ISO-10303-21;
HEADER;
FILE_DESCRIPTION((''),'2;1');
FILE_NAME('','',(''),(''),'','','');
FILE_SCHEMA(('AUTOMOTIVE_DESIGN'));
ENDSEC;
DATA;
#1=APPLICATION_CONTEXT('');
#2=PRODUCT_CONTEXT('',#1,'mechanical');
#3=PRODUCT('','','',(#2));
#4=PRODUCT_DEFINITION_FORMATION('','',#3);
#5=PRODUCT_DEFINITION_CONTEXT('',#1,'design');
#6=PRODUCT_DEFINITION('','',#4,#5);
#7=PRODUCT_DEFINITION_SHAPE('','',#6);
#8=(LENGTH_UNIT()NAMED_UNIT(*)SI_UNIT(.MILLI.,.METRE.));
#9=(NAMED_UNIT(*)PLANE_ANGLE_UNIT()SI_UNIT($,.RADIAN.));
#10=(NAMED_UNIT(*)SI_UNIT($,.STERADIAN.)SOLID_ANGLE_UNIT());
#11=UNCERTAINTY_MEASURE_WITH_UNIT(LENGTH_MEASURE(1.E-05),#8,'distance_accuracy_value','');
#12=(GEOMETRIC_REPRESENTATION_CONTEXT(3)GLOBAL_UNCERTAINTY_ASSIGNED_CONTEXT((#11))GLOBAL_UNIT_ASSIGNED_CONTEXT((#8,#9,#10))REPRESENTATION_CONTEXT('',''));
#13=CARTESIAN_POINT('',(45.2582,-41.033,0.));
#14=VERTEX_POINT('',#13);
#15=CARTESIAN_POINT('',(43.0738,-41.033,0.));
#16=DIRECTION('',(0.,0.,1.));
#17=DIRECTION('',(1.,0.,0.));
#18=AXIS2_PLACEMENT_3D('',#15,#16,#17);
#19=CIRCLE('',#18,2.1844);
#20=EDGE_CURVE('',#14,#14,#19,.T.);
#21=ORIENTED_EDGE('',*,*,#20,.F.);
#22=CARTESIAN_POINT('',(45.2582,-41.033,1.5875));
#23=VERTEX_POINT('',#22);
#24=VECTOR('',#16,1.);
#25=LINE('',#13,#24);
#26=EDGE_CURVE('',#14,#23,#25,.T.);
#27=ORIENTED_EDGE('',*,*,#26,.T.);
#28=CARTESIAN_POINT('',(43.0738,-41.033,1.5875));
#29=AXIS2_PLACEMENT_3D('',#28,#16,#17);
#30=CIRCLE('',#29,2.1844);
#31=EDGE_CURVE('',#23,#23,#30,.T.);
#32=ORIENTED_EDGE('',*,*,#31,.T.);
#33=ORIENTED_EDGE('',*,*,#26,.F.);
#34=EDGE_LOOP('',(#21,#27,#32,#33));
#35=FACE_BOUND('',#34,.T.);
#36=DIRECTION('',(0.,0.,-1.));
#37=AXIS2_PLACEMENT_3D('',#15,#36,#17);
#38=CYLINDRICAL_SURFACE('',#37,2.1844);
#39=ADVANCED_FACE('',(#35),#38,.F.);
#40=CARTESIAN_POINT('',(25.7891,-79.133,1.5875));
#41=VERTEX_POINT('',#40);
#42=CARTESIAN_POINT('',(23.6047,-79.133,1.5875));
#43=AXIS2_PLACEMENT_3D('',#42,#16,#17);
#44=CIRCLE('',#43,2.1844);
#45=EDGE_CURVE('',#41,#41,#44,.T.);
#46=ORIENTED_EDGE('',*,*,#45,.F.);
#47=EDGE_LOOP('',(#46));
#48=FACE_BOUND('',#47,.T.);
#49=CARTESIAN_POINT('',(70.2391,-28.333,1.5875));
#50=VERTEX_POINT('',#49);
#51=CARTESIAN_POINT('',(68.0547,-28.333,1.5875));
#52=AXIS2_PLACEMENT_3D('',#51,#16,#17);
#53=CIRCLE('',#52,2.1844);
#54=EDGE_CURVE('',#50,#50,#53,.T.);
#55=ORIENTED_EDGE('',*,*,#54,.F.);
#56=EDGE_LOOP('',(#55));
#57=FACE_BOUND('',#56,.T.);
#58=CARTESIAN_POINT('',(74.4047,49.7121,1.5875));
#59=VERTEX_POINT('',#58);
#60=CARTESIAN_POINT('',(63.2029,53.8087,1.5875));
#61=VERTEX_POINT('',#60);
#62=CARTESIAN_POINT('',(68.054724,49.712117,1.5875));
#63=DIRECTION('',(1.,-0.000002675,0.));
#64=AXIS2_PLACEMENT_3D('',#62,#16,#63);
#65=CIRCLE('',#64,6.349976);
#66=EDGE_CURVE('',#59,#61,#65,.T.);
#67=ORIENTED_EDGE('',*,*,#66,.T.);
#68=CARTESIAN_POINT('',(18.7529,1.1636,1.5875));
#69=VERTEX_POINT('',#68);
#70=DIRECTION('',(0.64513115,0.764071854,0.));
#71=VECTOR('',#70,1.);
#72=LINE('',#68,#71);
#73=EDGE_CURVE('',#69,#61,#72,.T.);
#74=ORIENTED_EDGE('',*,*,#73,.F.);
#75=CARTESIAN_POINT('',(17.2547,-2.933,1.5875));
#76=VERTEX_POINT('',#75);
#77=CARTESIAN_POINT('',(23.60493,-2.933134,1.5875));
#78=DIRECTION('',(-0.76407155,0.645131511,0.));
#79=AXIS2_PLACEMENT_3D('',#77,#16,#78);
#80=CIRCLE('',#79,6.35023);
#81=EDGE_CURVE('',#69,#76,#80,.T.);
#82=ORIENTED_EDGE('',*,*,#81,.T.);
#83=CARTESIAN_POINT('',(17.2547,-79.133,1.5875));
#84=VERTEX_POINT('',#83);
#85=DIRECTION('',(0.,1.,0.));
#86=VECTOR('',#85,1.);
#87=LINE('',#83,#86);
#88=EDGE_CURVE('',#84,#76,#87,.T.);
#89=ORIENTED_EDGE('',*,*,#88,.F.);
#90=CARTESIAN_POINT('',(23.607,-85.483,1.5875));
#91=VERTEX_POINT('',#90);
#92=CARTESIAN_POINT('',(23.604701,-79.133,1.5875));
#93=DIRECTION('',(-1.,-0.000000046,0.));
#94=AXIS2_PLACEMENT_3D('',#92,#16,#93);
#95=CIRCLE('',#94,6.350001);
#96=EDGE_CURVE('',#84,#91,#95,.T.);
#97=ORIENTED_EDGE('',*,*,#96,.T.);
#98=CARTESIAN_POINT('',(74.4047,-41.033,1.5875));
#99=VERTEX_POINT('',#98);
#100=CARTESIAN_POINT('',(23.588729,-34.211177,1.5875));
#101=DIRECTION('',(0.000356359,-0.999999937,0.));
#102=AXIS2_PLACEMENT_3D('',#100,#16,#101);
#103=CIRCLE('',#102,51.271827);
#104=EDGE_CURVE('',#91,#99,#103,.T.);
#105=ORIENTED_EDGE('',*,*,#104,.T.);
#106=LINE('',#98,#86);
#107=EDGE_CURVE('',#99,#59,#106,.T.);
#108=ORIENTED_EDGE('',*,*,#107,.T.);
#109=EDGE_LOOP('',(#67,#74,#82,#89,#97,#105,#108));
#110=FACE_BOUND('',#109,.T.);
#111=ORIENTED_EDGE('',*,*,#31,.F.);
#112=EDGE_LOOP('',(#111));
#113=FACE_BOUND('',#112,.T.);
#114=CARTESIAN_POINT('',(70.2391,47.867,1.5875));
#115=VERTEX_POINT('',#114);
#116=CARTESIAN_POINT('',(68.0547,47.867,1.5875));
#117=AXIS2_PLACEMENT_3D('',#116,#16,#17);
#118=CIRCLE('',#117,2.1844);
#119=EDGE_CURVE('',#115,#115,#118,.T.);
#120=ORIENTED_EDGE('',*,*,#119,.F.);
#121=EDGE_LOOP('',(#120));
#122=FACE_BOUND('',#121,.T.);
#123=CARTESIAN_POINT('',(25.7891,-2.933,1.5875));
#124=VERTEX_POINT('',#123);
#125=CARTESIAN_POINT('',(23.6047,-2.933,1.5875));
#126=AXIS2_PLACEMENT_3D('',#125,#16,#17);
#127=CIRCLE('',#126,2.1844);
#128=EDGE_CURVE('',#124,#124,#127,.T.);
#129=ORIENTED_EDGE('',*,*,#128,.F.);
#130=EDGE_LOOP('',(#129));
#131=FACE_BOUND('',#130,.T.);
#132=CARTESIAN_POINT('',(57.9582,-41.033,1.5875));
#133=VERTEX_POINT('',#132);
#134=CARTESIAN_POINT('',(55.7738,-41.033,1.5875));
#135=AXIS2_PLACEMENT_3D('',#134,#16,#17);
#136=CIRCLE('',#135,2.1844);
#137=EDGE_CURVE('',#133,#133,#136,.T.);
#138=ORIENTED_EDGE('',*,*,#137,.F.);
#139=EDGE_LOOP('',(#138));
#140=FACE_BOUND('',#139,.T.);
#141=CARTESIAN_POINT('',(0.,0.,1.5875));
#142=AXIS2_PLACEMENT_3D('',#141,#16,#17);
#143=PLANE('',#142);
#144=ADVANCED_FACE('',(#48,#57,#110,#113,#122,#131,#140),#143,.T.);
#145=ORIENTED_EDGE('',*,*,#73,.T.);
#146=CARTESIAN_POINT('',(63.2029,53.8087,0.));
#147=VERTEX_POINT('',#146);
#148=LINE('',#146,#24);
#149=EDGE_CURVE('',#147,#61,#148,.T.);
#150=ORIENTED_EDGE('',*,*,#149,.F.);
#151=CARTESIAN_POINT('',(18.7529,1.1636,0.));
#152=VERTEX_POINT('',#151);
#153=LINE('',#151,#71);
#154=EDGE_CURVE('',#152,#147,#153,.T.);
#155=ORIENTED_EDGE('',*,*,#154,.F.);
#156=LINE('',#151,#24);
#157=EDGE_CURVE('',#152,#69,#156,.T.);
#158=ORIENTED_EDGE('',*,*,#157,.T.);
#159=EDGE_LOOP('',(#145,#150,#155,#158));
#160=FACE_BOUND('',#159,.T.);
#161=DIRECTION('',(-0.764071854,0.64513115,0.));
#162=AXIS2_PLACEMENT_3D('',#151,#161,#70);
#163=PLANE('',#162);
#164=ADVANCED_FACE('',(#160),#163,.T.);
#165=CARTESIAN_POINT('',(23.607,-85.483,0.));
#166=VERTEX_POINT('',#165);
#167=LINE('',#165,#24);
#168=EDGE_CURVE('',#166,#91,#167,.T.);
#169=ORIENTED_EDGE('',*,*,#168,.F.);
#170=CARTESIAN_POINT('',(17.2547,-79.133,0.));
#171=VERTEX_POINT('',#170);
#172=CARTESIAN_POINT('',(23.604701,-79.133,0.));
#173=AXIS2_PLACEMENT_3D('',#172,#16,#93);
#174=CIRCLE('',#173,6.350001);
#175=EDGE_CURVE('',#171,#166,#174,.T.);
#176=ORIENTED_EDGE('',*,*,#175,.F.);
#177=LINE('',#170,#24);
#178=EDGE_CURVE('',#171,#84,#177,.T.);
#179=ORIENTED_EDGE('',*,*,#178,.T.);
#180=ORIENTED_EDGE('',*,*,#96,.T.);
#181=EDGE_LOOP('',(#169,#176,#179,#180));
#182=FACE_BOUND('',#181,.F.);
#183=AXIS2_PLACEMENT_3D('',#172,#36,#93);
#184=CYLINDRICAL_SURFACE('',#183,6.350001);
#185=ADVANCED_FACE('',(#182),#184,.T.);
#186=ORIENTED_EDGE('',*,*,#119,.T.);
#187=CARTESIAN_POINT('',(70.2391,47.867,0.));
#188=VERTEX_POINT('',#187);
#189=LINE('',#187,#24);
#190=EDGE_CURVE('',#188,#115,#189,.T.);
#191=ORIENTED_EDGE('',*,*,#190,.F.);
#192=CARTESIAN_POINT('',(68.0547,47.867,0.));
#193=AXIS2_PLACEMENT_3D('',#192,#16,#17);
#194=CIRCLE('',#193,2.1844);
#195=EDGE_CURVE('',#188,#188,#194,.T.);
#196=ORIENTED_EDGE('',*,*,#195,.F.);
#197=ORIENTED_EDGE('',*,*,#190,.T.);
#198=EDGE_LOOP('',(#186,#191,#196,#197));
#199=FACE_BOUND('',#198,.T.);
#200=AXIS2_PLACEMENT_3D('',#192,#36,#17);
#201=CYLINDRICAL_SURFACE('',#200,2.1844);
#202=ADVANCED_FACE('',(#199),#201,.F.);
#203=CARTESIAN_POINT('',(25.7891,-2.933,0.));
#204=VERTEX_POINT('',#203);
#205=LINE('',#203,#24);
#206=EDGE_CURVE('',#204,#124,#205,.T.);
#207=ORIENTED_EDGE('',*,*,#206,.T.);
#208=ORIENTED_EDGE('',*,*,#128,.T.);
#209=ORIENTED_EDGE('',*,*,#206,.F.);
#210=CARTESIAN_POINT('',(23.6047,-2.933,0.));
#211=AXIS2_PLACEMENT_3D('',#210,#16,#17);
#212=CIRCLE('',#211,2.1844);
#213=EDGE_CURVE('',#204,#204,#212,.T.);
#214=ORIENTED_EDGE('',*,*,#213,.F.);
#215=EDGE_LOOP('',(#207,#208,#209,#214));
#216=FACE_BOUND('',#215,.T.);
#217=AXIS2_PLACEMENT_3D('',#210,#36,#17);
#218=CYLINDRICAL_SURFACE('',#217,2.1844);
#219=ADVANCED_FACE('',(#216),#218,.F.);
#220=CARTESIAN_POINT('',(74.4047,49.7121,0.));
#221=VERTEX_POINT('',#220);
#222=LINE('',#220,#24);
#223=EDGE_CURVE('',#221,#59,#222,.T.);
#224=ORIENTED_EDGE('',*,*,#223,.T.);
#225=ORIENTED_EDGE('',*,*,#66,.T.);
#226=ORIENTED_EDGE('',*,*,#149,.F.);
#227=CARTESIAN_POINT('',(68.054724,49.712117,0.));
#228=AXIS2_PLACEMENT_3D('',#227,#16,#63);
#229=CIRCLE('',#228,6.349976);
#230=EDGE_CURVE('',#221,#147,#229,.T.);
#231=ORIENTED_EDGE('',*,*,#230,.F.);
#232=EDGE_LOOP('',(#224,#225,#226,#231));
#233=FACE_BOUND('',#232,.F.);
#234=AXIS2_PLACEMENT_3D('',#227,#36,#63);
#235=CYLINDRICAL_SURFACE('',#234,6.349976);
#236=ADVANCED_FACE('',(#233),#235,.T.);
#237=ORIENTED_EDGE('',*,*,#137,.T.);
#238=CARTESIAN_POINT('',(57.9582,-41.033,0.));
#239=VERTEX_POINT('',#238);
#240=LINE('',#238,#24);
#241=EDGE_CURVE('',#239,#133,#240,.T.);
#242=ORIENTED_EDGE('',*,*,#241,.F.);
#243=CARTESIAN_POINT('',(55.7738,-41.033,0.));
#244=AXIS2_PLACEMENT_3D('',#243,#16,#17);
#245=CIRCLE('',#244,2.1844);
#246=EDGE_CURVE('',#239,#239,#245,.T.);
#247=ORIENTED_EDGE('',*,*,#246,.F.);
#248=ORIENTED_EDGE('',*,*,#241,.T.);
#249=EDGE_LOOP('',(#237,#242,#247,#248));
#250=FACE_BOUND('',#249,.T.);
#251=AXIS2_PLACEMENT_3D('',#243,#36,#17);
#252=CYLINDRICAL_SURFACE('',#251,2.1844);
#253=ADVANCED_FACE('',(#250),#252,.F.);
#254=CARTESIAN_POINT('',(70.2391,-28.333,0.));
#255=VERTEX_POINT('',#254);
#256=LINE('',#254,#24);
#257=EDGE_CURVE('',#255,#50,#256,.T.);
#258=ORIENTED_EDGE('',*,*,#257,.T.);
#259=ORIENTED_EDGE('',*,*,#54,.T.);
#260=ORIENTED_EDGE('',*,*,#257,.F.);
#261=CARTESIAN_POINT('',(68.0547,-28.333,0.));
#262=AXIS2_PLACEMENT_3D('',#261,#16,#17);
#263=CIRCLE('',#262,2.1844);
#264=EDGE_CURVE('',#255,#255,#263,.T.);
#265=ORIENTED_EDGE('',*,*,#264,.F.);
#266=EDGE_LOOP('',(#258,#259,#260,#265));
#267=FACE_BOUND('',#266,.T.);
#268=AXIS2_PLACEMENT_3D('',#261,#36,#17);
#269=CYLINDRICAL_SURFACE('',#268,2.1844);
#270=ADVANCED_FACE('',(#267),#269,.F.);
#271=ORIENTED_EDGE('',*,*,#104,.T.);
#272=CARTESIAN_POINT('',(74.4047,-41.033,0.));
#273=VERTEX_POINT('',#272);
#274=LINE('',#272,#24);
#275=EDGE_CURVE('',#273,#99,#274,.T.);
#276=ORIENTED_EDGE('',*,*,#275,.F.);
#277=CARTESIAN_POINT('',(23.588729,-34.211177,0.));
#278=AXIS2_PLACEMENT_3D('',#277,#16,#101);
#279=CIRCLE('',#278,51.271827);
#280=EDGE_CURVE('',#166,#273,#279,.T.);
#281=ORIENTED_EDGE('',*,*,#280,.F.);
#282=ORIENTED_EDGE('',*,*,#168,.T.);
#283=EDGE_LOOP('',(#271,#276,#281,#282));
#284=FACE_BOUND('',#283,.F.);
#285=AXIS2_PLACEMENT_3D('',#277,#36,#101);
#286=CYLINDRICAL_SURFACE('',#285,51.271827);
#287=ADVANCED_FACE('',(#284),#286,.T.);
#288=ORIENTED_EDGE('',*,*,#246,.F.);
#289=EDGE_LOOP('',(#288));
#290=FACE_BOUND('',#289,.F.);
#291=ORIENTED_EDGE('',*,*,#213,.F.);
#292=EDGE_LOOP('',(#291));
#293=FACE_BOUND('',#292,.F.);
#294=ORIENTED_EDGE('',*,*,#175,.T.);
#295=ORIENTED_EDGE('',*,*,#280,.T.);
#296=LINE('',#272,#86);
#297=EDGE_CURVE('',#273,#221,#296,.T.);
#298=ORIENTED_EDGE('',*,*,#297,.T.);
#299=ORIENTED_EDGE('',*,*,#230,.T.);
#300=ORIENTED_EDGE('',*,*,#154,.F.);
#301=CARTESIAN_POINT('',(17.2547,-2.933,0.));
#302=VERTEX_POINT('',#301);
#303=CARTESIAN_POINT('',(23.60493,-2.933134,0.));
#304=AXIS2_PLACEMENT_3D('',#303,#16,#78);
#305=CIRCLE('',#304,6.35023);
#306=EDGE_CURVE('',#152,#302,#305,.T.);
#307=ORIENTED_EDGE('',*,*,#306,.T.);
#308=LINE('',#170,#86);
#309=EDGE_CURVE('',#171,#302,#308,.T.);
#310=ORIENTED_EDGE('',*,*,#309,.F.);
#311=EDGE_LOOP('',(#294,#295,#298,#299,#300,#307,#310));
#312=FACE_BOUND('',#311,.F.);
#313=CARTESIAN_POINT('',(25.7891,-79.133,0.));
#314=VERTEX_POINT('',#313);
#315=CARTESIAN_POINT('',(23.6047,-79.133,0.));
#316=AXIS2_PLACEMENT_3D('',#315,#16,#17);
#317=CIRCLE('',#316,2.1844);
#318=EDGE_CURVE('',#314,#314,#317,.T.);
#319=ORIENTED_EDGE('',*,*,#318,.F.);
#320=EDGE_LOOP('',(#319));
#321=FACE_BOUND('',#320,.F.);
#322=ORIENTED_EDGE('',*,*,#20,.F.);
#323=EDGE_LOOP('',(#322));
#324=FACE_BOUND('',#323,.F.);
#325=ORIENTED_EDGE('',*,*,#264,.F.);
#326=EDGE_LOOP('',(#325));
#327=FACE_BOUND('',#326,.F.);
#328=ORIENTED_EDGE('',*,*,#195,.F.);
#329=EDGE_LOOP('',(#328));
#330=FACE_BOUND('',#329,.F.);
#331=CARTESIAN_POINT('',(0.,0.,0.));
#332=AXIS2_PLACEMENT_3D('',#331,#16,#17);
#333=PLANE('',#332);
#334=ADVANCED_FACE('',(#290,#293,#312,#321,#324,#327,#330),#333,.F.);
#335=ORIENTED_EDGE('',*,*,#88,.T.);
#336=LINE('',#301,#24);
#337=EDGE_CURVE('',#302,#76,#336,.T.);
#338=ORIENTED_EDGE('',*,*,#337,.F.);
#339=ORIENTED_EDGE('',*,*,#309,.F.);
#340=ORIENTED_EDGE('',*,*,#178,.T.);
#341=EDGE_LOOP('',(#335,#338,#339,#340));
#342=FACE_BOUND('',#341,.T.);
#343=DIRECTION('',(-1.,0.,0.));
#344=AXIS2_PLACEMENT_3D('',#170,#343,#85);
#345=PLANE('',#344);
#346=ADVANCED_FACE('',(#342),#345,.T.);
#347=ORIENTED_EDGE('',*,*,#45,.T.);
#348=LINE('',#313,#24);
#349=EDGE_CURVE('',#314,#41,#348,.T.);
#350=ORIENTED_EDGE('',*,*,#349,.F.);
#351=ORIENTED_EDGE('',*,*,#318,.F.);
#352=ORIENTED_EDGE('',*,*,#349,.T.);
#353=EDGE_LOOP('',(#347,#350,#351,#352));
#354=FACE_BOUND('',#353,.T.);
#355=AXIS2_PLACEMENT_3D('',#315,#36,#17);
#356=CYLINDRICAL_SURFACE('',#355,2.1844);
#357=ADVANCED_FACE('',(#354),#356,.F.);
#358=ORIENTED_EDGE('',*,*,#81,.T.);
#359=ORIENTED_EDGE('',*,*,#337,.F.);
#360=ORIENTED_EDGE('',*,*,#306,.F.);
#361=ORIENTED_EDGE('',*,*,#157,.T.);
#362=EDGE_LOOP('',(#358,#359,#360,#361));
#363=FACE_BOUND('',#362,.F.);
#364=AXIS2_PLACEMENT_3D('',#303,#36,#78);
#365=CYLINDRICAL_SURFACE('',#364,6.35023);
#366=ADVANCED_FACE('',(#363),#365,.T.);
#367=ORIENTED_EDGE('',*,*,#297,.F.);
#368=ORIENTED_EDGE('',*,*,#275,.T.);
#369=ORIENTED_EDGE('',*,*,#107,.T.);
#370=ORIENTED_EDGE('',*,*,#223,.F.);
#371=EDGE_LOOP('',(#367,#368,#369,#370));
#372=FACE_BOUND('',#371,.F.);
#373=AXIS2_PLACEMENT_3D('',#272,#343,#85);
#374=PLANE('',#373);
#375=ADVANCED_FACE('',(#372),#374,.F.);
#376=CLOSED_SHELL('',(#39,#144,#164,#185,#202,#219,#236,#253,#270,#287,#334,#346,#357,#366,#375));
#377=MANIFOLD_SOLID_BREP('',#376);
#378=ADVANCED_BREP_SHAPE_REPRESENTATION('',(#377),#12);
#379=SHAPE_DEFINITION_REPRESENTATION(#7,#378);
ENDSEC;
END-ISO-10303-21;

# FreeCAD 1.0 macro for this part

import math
import FreeCAD as App
import Part
import Sketcher

V = App.Vector
Q = App.Units.Quantity

doc = App.newDocument("Part")
body = doc.addObject("PartDesign::Body", "Body")

sketch1 = body.newObject("Sketcher::SketchObject", "Sketch")
sketch1.AttachmentSupport = (doc.getObject("XY_Plane"), [""])
sketch1.MapMode = "FlatFace"
sketch1.addGeometry(Part.LineSegment(V(63.2029, 53.8087, 0), V(18.7529, 1.1636, 0)), False)
sketch1.addGeometry(Part.ArcOfCircle(Part.Circle(V(23.6047, -2.933, 0), V(0, 0, 1), 6.349968), math.radians(139.824044), math.radians(180)), False)
sketch1.addGeometry(Part.LineSegment(V(17.2547, -2.933, 0), V(17.2547, -79.133, 0)), False)
sketch1.addGeometry(Part.ArcOfCircle(Part.Circle(V(23.6047, -79.133, 0), V(0, 0, 1), 6.35), math.radians(180), math.radians(270.020753)), False)
sketch1.addGeometry(Part.ArcOfCircle(Part.Circle(V(23.5887, -34.2111, 0), V(0, 0, 1), 51.271903), math.radians(-89.97955), math.radians(-7.646077)), False)
sketch1.addGeometry(Part.LineSegment(V(74.4047, -41.033, 0), V(74.4047, 49.7121, 0)), False)
sketch1.addGeometry(Part.ArcOfCircle(Part.Circle(V(68.0547, 49.7121, 0), V(0, 0, 1), 6.35), math.radians(0), math.radians(139.824044)), False)
sketch1.addGeometry(Part.Circle(V(23.6047, -79.133, 0), V(0, 0, 1), 2.1844), False)
sketch1.addGeometry(Part.Circle(V(43.0738, -41.033, 0), V(0, 0, 1), 2.1844), False)
sketch1.addGeometry(Part.Circle(V(55.7738, -41.033, 0), V(0, 0, 1), 2.1844), False)
sketch1.addGeometry(Part.Circle(V(68.0547, -28.333, 0), V(0, 0, 1), 2.1844), False)
sketch1.addGeometry(Part.Circle(V(23.6047, -2.933, 0), V(0, 0, 1), 2.1844), False)
sketch1.addGeometry(Part.Circle(V(68.0547, 47.867, 0), V(0, 0, 1), 2.1844), False)
sketch1.addConstraint(Sketcher.Constraint("Tangent", 0, 2, 1, 1))
sketch1.addConstraint(Sketcher.Constraint("Tangent", 1, 2, 2, 1))
sketch1.addConstraint(Sketcher.Constraint("Tangent", 2, 2, 3, 1))
sketch1.addConstraint(Sketcher.Constraint("Tangent", 3, 2, 4, 1))
sketch1.addConstraint(Sketcher.Constraint("Coincident", 4, 2, 5, 1))
sketch1.addConstraint(Sketcher.Constraint("Tangent", 5, 2, 6, 1))
sketch1.addConstraint(Sketcher.Constraint("Tangent", 6, 2, 0, 1))
sketch1.addConstraint(Sketcher.Constraint("Vertical", 2))
sketch1.addConstraint(Sketcher.Constraint("Vertical", 5))
sketch1.addConstraint(Sketcher.Constraint("Coincident", 7, 3, 3, 3))
sketch1.addConstraint(Sketcher.Constraint("Coincident", 11, 3, 1, 3))
sketch1.addConstraint(Sketcher.Constraint("Equal", 1, 3))
sketch1.addConstraint(Sketcher.Constraint("Equal", 3, 6))
sketch1.addConstraint(Sketcher.Constraint("Equal", 7, 8))
sketch1.addConstraint(Sketcher.Constraint("Equal", 8, 9))
sketch1.addConstraint(Sketcher.Constraint("Equal", 9, 10))
sketch1.addConstraint(Sketcher.Constraint("Equal", 10, 11))
sketch1.addConstraint(Sketcher.Constraint("Equal", 11, 12))
sketch1.addConstraint(Sketcher.Constraint("Horizontal", 8, 3, 9, 3))
sketch1.addConstraint(Sketcher.Constraint("Horizontal", 9, 3, 4, 2))
sketch1.addConstraint(Sketcher.Constraint("Vertical", 6, 3, 10, 3))
sketch1.addConstraint(Sketcher.Constraint("Vertical", 10, 3, 12, 3))
sketch1.addConstraint(Sketcher.Constraint("Radius", 1, Q("0.25 in")))
sketch1.addConstraint(Sketcher.Constraint("Diameter", 7, Q("0.172 in")))
sketch1.addConstraint(Sketcher.Constraint("DistanceX", 8, 3, 9, 3, Q("0.5 in")))
sketch1.addConstraint(Sketcher.Constraint("DistanceY", 9, 3, 10, 3, Q("0.5 in")))
sketch1.addConstraint(Sketcher.Constraint("DistanceY", 2, 2, 2, 1, Q("3 in")))
sketch1.addConstraint(Sketcher.Constraint("DistanceY", 10, 3, 1, 3, Q("1 in")))
sketch1.addConstraint(Sketcher.Constraint("DistanceY", 1, 3, 12, 3, Q("2 in")))
sketch1.addConstraint(Sketcher.Constraint("DistanceX", 3, 3, 4, 2, Q("2 in")))
sketch1.addConstraint(Sketcher.Constraint("Radius", 4, Q("51.272 mm")))
sketch1.addConstraint(Sketcher.Constraint("DistanceY", 5, 1, 5, 2, Q("90.745 mm")))
sketch1.addConstraint(Sketcher.Constraint("DistanceX", -1, 1, 4, 3, Q("0.9287 in")))
sketch1.addConstraint(Sketcher.Constraint("DistanceY", 4, 3, -1, 1, Q("1.3469 in")))
sketch1.addConstraint(Sketcher.Constraint("DistanceX", 3, 3, 8, 3, Q("0.7665 in")))
pad1 = body.newObject("PartDesign::Pad", "Pad")
pad1.Profile = sketch1
pad1.Length = Q("0.0625 in")

doc.recompute()
